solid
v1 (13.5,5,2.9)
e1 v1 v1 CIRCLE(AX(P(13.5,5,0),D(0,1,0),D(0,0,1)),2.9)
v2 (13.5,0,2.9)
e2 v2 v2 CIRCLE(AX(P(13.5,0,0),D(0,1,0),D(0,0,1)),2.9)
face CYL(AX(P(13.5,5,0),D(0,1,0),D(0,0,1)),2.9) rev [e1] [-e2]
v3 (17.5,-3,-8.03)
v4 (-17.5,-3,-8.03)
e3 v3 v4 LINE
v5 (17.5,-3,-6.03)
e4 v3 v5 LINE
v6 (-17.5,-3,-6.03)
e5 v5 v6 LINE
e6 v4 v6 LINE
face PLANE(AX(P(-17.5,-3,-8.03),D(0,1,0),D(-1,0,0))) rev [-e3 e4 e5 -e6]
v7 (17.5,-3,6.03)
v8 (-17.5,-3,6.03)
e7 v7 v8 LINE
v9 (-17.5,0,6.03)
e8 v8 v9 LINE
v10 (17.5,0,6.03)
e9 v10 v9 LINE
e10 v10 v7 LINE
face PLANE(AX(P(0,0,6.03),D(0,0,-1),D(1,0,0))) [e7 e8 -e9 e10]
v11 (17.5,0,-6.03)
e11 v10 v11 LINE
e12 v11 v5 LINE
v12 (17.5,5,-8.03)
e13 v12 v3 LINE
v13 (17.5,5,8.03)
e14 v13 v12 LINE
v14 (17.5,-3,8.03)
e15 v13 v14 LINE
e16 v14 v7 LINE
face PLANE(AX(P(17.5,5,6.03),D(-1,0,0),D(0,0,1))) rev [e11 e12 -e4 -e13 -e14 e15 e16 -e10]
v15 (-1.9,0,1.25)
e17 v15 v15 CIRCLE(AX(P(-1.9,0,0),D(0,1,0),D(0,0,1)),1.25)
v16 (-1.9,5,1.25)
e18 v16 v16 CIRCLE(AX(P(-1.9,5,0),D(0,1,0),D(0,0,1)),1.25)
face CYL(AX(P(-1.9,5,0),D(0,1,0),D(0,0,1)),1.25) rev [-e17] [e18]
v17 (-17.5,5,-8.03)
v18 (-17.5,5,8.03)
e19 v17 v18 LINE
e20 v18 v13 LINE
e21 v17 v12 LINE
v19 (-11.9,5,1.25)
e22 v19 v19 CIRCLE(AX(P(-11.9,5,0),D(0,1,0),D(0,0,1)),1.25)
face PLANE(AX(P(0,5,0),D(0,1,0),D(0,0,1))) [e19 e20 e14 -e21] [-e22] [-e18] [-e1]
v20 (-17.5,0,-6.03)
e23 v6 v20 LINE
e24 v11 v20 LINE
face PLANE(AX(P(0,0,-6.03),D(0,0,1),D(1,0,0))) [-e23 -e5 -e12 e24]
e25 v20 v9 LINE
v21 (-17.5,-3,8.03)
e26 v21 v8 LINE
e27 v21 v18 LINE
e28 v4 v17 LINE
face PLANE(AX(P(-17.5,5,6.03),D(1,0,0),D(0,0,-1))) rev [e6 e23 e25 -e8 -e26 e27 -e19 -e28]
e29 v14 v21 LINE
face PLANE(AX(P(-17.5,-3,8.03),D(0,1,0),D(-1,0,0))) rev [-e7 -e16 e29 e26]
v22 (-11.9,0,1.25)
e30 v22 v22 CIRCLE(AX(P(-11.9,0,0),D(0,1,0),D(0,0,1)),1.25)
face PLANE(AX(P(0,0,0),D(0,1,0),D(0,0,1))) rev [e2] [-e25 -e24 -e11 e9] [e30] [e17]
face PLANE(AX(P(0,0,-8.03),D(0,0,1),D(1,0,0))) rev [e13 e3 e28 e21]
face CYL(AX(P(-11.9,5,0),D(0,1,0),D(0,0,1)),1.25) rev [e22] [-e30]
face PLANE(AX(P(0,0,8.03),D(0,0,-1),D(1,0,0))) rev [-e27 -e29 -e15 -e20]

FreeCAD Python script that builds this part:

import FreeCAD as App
import Part
import Sketcher
from FreeCAD import Vector

doc = App.newDocument("Part")
body = doc.addObject("PartDesign::Body", "Body")

sketch1 = body.newObject("Sketcher::SketchObject", "Sketch")
sketch1.AttachmentSupport = (doc.getObject("XZ_Plane"), [""])
sketch1.MapMode = "FlatFace"
sketch1.addGeometry(Part.LineSegment(Vector(-18, -6, 0), Vector(-18, 6, 0)), False)
sketch1.addGeometry(Part.LineSegment(Vector(-18, 6, 0), Vector(18, 6, 0)), False)
sketch1.addGeometry(Part.LineSegment(Vector(18, 6, 0), Vector(18, -6, 0)), False)
sketch1.addGeometry(Part.LineSegment(Vector(18, -6, 0), Vector(-18, -6, 0)), False)
sketch1.addConstraint(Sketcher.Constraint("Coincident", 0, 2, 1, 1))
sketch1.addConstraint(Sketcher.Constraint("Coincident", 1, 2, 2, 1))
sketch1.addConstraint(Sketcher.Constraint("Coincident", 2, 2, 3, 1))
sketch1.addConstraint(Sketcher.Constraint("Coincident", 3, 2, 0, 1))
sketch1.addConstraint(Sketcher.Constraint("Vertical", 0))
sketch1.addConstraint(Sketcher.Constraint("Horizontal", 1))
sketch1.addConstraint(Sketcher.Constraint("Vertical", 2))
sketch1.addConstraint(Sketcher.Constraint("Horizontal", 3))
sketch1.addConstraint(Sketcher.Constraint("Symmetric", 0, 2, 2, 2, -1, 1))
sketch1.addConstraint(Sketcher.Constraint("DistanceX", 1, 1, 1, 2, 35.0))
sketch1.addConstraint(Sketcher.Constraint("DistanceY", 0, 1, 0, 2, 12.06))
pad1 = body.newObject("PartDesign::Pad", "Pad")
pad1.Profile = sketch1
pad1.Length = 5
pad1.Reversed = True

sketch2 = body.newObject("Sketcher::SketchObject", "Sketch001")
sketch2.AttachmentSupport = (doc.getObject("XZ_Plane"), [""])
sketch2.MapMode = "FlatFace"
sketch2.AttachmentOffset = App.Placement(Vector(0, 0, -5), App.Rotation())
sketch2.addGeometry(Part.Circle(Vector(13.5, 0, 0), Vector(0, 0, 1), 2.9), False)
sketch2.addConstraint(Sketcher.Constraint("PointOnObject", 0, 3, -1))
sketch2.addConstraint(Sketcher.Constraint("Diameter", 0, 5.8))
sketch2.addConstraint(Sketcher.Constraint("DistanceX", -1, 1, 0, 3, 13.5))
doc.recompute()
hole = body.newObject("PartDesign::Hole", "Hole")
hole.Profile = sketch2
hole.ThreadType = "None"
hole.Diameter = 5.8
hole.DepthType = "ThroughAll"
hole.Reversed = True

sketch3 = body.newObject("Sketcher::SketchObject", "Sketch002")
sketch3.AttachmentSupport = (doc.getObject("XZ_Plane"), [""])
sketch3.MapMode = "FlatFace"
sketch3.AttachmentOffset = App.Placement(Vector(0, 0, -5), App.Rotation())
sketch3.addGeometry(Part.Circle(Vector(-1.9, 0, 0), Vector(0, 0, 1), 1.2), False)
sketch3.addGeometry(Part.Circle(Vector(-11.9, 0, 0), Vector(0, 0, 1), 1.2), False)
sketch3.addConstraint(Sketcher.Constraint("Equal", 0, 1))
sketch3.addConstraint(Sketcher.Constraint("PointOnObject", 0, 3, -1))
sketch3.addConstraint(Sketcher.Constraint("PointOnObject", 1, 3, -1))
sketch3.addConstraint(Sketcher.Constraint("Diameter", 0, 2.5))
sketch3.addConstraint(Sketcher.Constraint("DistanceX", 1, 3, 0, 3, 10.0))
sketch3.addConstraint(Sketcher.Constraint("DistanceX", 0, 3, -1, 1, 1.9))
doc.recompute()
hole2 = body.newObject("PartDesign::Hole", "Hole001")
hole2.Profile = sketch3
hole2.ThreadType = "None"
hole2.Diameter = 2.5
hole2.DepthType = "ThroughAll"
hole2.Reversed = True

sketch4 = body.newObject("Sketcher::SketchObject", "Sketch003")
sketch4.AttachmentSupport = (doc.getObject("XY_Plane"), [""])
sketch4.MapMode = "FlatFace"
sketch4.AttachmentOffset = App.Placement(Vector(0, 0, -6.03), App.Rotation())
sketch4.addGeometry(Part.LineSegment(Vector(18, 5, 0), Vector(18, -3, 0)), False)
sketch4.addGeometry(Part.LineSegment(Vector(18, -3, 0), Vector(-18, -3, 0)), False)
sketch4.addGeometry(Part.LineSegment(Vector(-18, -3, 0), Vector(-18, 5, 0)), False)
sketch4.addGeometry(Part.LineSegment(Vector(-18, 5, 0), Vector(18, 5, 0)), False)
sketch4.addConstraint(Sketcher.Constraint("Coincident", 0, 2, 1, 1))
sketch4.addConstraint(Sketcher.Constraint("Coincident", 1, 2, 2, 1))
sketch4.addConstraint(Sketcher.Constraint("Coincident", 2, 2, 3, 1))
sketch4.addConstraint(Sketcher.Constraint("Coincident", 3, 2, 0, 1))
sketch4.addConstraint(Sketcher.Constraint("Vertical", 0))
sketch4.addConstraint(Sketcher.Constraint("Horizontal", 1))
sketch4.addConstraint(Sketcher.Constraint("Vertical", 2))
sketch4.addConstraint(Sketcher.Constraint("Horizontal", 3))
sketch4.addConstraint(Sketcher.Constraint("DistanceX", 1, 2, 1, 1, 35.0))
sketch4.addConstraint(Sketcher.Constraint("DistanceY", 0, 2, 0, 1, 8.0))
sketch4.addConstraint(Sketcher.Constraint("DistanceY", 0, 2, -1, 1, 3.0))
sketch4.addConstraint(Sketcher.Constraint("DistanceX", -1, 1, 0, 2, 17.5))
pad2 = body.newObject("PartDesign::Pad", "Pad001")
pad2.Profile = sketch4
pad2.Length = 2
pad2.Reversed = True
body2 = doc.addObject("PartDesign::Body", "Body001")
doc.recompute()

body2.BaseFeature = body
doc.recompute()

mirroring = doc.addObject("Part::Mirroring", "Mirroring")
mirroring.Source = body
mirroring.Base = Vector(0, 0, 0)
mirroring.Normal = Vector(0, 0, 1)
body3 = doc.addObject("PartDesign::Body", "Body002")
body3.BaseFeature = mirroring
boolean = body2.newObject("PartDesign::Boolean", "Boolean")
boolean.Type = "Fuse"
boolean.addObjects([body3])
doc.recompute()
mirroring.Visibility = False

doc.recompute()
